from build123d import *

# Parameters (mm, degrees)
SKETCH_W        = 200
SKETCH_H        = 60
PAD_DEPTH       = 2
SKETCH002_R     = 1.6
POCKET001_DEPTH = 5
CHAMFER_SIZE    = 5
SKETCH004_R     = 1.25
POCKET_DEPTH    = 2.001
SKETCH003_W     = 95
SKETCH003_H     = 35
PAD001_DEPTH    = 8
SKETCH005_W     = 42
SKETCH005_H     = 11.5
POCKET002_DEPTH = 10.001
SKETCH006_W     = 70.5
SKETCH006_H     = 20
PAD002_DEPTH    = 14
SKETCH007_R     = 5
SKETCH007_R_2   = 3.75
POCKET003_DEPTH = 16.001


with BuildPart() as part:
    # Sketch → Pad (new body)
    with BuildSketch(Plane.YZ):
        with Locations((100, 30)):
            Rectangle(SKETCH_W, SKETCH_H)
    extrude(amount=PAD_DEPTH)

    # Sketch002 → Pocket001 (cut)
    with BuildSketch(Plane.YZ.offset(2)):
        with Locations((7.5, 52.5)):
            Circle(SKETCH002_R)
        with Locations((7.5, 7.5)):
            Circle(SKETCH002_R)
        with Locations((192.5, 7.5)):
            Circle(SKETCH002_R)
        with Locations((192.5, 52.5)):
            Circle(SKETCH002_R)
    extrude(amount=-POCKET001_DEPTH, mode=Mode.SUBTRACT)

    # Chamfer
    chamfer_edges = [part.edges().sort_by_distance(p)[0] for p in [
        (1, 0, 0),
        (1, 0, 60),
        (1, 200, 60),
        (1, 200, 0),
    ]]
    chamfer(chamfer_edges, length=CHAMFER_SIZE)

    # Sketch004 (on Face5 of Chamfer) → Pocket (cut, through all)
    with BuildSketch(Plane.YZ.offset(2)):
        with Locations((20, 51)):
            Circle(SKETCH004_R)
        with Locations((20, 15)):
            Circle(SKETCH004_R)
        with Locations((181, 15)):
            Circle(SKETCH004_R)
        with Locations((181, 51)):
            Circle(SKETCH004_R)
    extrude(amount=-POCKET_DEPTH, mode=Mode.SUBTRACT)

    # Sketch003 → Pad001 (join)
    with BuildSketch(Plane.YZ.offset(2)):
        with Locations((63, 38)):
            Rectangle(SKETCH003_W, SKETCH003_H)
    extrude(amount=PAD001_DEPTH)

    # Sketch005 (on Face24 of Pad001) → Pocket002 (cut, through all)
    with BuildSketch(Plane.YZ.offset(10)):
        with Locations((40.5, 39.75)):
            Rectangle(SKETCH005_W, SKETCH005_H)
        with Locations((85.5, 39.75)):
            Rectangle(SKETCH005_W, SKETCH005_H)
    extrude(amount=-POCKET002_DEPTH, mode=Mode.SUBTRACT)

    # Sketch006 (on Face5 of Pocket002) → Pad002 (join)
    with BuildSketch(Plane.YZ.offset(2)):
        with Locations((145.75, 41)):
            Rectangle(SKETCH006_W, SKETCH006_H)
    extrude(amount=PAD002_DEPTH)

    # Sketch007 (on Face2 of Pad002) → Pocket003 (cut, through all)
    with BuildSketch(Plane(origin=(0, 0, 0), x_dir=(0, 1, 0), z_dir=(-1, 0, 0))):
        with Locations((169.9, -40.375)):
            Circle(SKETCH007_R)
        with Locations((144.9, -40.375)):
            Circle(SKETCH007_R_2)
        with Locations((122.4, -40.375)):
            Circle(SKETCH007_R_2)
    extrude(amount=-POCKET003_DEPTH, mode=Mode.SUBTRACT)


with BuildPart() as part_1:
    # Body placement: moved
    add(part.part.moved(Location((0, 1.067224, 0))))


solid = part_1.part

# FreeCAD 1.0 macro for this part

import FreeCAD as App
import Part
import Sketcher


def edges_at(feature, points):
    """Names of the edges that pass closest to the given points."""
    edges = feature.Shape.Edges
    near = lambda p: min(range(len(edges)), key=lambda i: edges[i].distToShape(Part.Vertex(*p))[0])
    return sorted({f"Edge{near(p) + 1}" for p in points})

doc = App.newDocument("Part")
body = doc.addObject("PartDesign::Body", "Body")

sketch1 = body.newObject("Sketcher::SketchObject", "Sketch")
sketch1.AttachmentSupport = (doc.getObject("YZ_Plane"), [""])
sketch1.MapMode = "FlatFace"
sketch1.addGeometry([
    Part.LineSegment(App.Vector(0, 60, 0), App.Vector(0, 0, 0)),
    Part.LineSegment(App.Vector(0, 0, 0), App.Vector(200, 0, 0)),
    Part.LineSegment(App.Vector(200, 0, 0), App.Vector(200, 60, 0)),
    Part.LineSegment(App.Vector(200, 60, 0), App.Vector(0, 60, 0)),
], False)
sketch1.addConstraint([
    Sketcher.Constraint("Coincident", 0, 2, 1, 1),
    Sketcher.Constraint("Coincident", 1, 2, 2, 1),
    Sketcher.Constraint("Coincident", 2, 2, 3, 1),
    Sketcher.Constraint("Coincident", 3, 2, 0, 1),
    Sketcher.Constraint("Vertical", 0),
    Sketcher.Constraint("Horizontal", 1),
    Sketcher.Constraint("Vertical", 2),
    Sketcher.Constraint("Horizontal", 3),
    Sketcher.Constraint("Coincident", 0, 2, -1, 1),
    Sketcher.Constraint("DistanceX", 1, 1, 1, 2, 200.0),
    Sketcher.Constraint("DistanceY", 0, 2, 0, 1, 60.0),
])
pad1 = body.newObject("PartDesign::Pad", "Pad")
pad1.Profile = sketch1
pad1.Length = 2

sketch2 = body.newObject("Sketcher::SketchObject", "Sketch001")
sketch2.AttachmentSupport = (doc.getObject("YZ_Plane"), [""])
sketch2.MapMode = "FlatFace"
sketch2.AttachmentOffset = App.Placement(App.Vector(0, 0, 2), App.Rotation())
sketch2.addGeometry([
    Part.Circle(App.Vector(7.5, 52.5, 0), App.Vector(0, 0, 1), 1.6),
    Part.Circle(App.Vector(7.5, 7.5, 0), App.Vector(0, 0, 1), 1.6),
    Part.Circle(App.Vector(192.5, 7.5, 0), App.Vector(0, 0, 1), 1.6),
    Part.Circle(App.Vector(192.5, 52.5, 0), App.Vector(0, 0, 1), 1.6),
], False)
sketch2.addConstraint([
    Sketcher.Constraint("Equal", 0, 1),
    Sketcher.Constraint("Equal", 1, 2),
    Sketcher.Constraint("Equal", 2, 3),
    Sketcher.Constraint("Horizontal", 1, 3, 2, 3),
    Sketcher.Constraint("Horizontal", 0, 3, 3, 3),
    Sketcher.Constraint("Vertical", 0, 3, 1, 3),
    Sketcher.Constraint("Vertical", 2, 3, 3, 3),
    Sketcher.Constraint("Diameter", 0, 3.2),
    Sketcher.Constraint("DistanceY", 1, 3, 0, 3, 45.0),
    Sketcher.Constraint("DistanceX", 1, 3, 2, 3, 185.0),
    Sketcher.Constraint("DistanceX", -1, 1, 0, 3, 7.5),
    Sketcher.Constraint("DistanceY", -1, 1, 0, 3, 52.5),
])
pocket1 = body.newObject("PartDesign::Pocket", "Pocket")
pocket1.Profile = sketch2
pocket1.Length = 5
doc.recompute()

chamfer = body.newObject("PartDesign::Chamfer", "Chamfer")
chamfer.Base = (pocket1, edges_at(pocket1, [
    (1, 0, 0),
    (1, 0, 60),
    (1, 200, 60),
    (1, 200, 0),
]))
chamfer.Size = 5

sketch3 = body.newObject("Sketcher::SketchObject", "Sketch002")
sketch3.AttachmentSupport = (doc.getObject("YZ_Plane"), [""])
sketch3.MapMode = "FlatFace"
sketch3.AttachmentOffset = App.Placement(App.Vector(0, 0, 2), App.Rotation())
sketch3.addGeometry([
    Part.Circle(App.Vector(20, 51, 0), App.Vector(0, 0, 1), 1.25),
    Part.Circle(App.Vector(20, 15, 0), App.Vector(0, 0, 1), 1.25),
    Part.Circle(App.Vector(181, 15, 0), App.Vector(0, 0, 1), 1.25),
    Part.Circle(App.Vector(181, 51, 0), App.Vector(0, 0, 1), 1.25),
], False)
sketch3.addConstraint([
    Sketcher.Constraint("Equal", 0, 1),
    Sketcher.Constraint("Equal", 1, 2),
    Sketcher.Constraint("Equal", 2, 3),
    Sketcher.Constraint("Horizontal", 1, 3, 2, 3),
    Sketcher.Constraint("Horizontal", 0, 3, 3, 3),
    Sketcher.Constraint("Vertical", 0, 3, 1, 3),
    Sketcher.Constraint("Vertical", 2, 3, 3, 3),
    Sketcher.Constraint("Diameter", 0, 2.5),
    Sketcher.Constraint("DistanceX", -1, 1, 0, 3, 20.0),
    Sketcher.Constraint("DistanceY", -1, 1, 0, 3, 51.0),
    Sketcher.Constraint("DistanceY", -1, 1, 1, 3, 15.0),
    Sketcher.Constraint("DistanceX", -1, 1, 2, 3, 181.0),
])
pocket2 = body.newObject("PartDesign::Pocket", "Pocket001")
pocket2.Profile = sketch3
pocket2.Type = "ThroughAll"

sketch4 = body.newObject("Sketcher::SketchObject", "Sketch003")
sketch4.AttachmentSupport = (doc.getObject("YZ_Plane"), [""])
sketch4.MapMode = "FlatFace"
sketch4.AttachmentOffset = App.Placement(App.Vector(0, 0, 2), App.Rotation())
sketch4.addGeometry([
    Part.LineSegment(App.Vector(15.5, 55.5, 0), App.Vector(15.5, 20.5, 0)),
    Part.LineSegment(App.Vector(15.5, 20.5, 0), App.Vector(110.5, 20.5, 0)),
    Part.LineSegment(App.Vector(110.5, 20.5, 0), App.Vector(110.5, 55.5, 0)),
    Part.LineSegment(App.Vector(110.5, 55.5, 0), App.Vector(15.5, 55.5, 0)),
], False)
sketch4.addConstraint([
    Sketcher.Constraint("Coincident", 0, 2, 1, 1),
    Sketcher.Constraint("Coincident", 1, 2, 2, 1),
    Sketcher.Constraint("Coincident", 2, 2, 3, 1),
    Sketcher.Constraint("Coincident", 3, 2, 0, 1),
    Sketcher.Constraint("Vertical", 0),
    Sketcher.Constraint("Horizontal", 1),
    Sketcher.Constraint("Vertical", 2),
    Sketcher.Constraint("Horizontal", 3),
    Sketcher.Constraint("DistanceX", 1, 1, 1, 2, 95.0),
    Sketcher.Constraint("DistanceY", 0, 2, 0, 1, 35.0),
    Sketcher.Constraint("DistanceX", -1, 1, 0, 2, 15.5),
    Sketcher.Constraint("DistanceY", -1, 1, 0, 2, 20.5),
])
pad2 = body.newObject("PartDesign::Pad", "Pad001")
pad2.Profile = sketch4
pad2.Length = 8

sketch5 = body.newObject("Sketcher::SketchObject", "Sketch004")
sketch5.AttachmentSupport = (doc.getObject("YZ_Plane"), [""])
sketch5.MapMode = "FlatFace"
sketch5.AttachmentOffset = App.Placement(App.Vector(0, 0, 10), App.Rotation())
sketch5.addGeometry([
    Part.LineSegment(App.Vector(19.5, 45.5, 0), App.Vector(19.5, 34, 0)),
    Part.LineSegment(App.Vector(19.5, 34, 0), App.Vector(61.5, 34, 0)),
    Part.LineSegment(App.Vector(61.5, 34, 0), App.Vector(61.5, 45.5, 0)),
    Part.LineSegment(App.Vector(61.5, 45.5, 0), App.Vector(19.5, 45.5, 0)),
    Part.LineSegment(App.Vector(64.5, 45.5, 0), App.Vector(64.5, 34, 0)),
    Part.LineSegment(App.Vector(64.5, 34, 0), App.Vector(106.5, 34, 0)),
    Part.LineSegment(App.Vector(106.5, 34, 0), App.Vector(106.5, 45.5, 0)),
    Part.LineSegment(App.Vector(106.5, 45.5, 0), App.Vector(64.5, 45.5, 0)),
], False)
sketch5.addConstraint([
    Sketcher.Constraint("Coincident", 0, 2, 1, 1),
    Sketcher.Constraint("Coincident", 1, 2, 2, 1),
    Sketcher.Constraint("Coincident", 2, 2, 3, 1),
    Sketcher.Constraint("Coincident", 3, 2, 0, 1),
    Sketcher.Constraint("Coincident", 4, 2, 5, 1),
    Sketcher.Constraint("Coincident", 5, 2, 6, 1),
    Sketcher.Constraint("Coincident", 6, 2, 7, 1),
    Sketcher.Constraint("Coincident", 7, 2, 4, 1),
    Sketcher.Constraint("Vertical", 0),
    Sketcher.Constraint("Horizontal", 1),
    Sketcher.Constraint("Vertical", 2),
    Sketcher.Constraint("Horizontal", 3),
    Sketcher.Constraint("Vertical", 4),
    Sketcher.Constraint("Horizontal", 5),
    Sketcher.Constraint("Vertical", 6),
    Sketcher.Constraint("Horizontal", 7),
    Sketcher.Constraint("Horizontal", 1, 2, 4, 2),
    Sketcher.Constraint("Horizontal", 3, 2, 6, 2),
    Sketcher.Constraint("Equal", 3, 5),
    Sketcher.Constraint("DistanceX", 1, 1, 1, 2, 42.0),
    Sketcher.Constraint("DistanceY", 0, 2, 0, 1, 11.5),
    Sketcher.Constraint("DistanceY", -1, 1, 0, 2, 34.0),
    Sketcher.Constraint("DistanceX", 1, 2, 4, 2, 3.0),
    Sketcher.Constraint("DistanceX", -1, 1, 0, 2, 19.5),
])
pocket3 = body.newObject("PartDesign::Pocket", "Pocket002")
pocket3.Profile = sketch5
pocket3.Type = "ThroughAll"

sketch6 = body.newObject("Sketcher::SketchObject", "Sketch005")
sketch6.AttachmentSupport = (doc.getObject("YZ_Plane"), [""])
sketch6.MapMode = "FlatFace"
sketch6.AttachmentOffset = App.Placement(App.Vector(0, 0, 2), App.Rotation())
sketch6.addGeometry([
    Part.LineSegment(App.Vector(110.5, 51, 0), App.Vector(110.5, 31, 0)),
    Part.LineSegment(App.Vector(110.5, 31, 0), App.Vector(181, 31, 0)),
    Part.LineSegment(App.Vector(181, 31, 0), App.Vector(181, 51, 0)),
    Part.LineSegment(App.Vector(181, 51, 0), App.Vector(110.5, 51, 0)),
], False)
sketch6.addConstraint([
    Sketcher.Constraint("Coincident", 0, 2, 1, 1),
    Sketcher.Constraint("Coincident", 1, 2, 2, 1),
    Sketcher.Constraint("Coincident", 2, 2, 3, 1),
    Sketcher.Constraint("Coincident", 3, 2, 0, 1),
    Sketcher.Constraint("Vertical", 0),
    Sketcher.Constraint("Horizontal", 1),
    Sketcher.Constraint("Vertical", 2),
    Sketcher.Constraint("Horizontal", 3),
    Sketcher.Constraint("DistanceY", 0, 2, 0, 1, 20.0),
    Sketcher.Constraint("DistanceX", 1, 1, 1, 2, 70.5),
    Sketcher.Constraint("DistanceY", -1, 1, 0, 2, 31.0),
    Sketcher.Constraint("DistanceX", -1, 1, 1, 2, 181.0),
])
pad3 = body.newObject("PartDesign::Pad", "Pad002")
pad3.Profile = sketch6
pad3.Length = 14

sketch7 = body.newObject("Sketcher::SketchObject", "Sketch006")
sketch7.AttachmentSupport = (doc.getObject("YZ_Plane"), [""])
sketch7.MapMode = "FlatFace"
sketch7.addGeometry([
    Part.Circle(App.Vector(169.9, 40.375, 0), App.Vector(0, 0, 1), 5),
    Part.Circle(App.Vector(144.9, 40.375, 0), App.Vector(0, 0, 1), 3.75),
    Part.Circle(App.Vector(122.4, 40.375, 0), App.Vector(0, 0, 1), 3.75),
], False)
sketch7.addConstraint([
    Sketcher.Constraint("Equal", 1, 2),
    Sketcher.Constraint("Horizontal", 0, 3, 1, 3),
    Sketcher.Constraint("Horizontal", 1, 3, 2, 3),
    Sketcher.Constraint("Diameter", 0, 10.0),
    Sketcher.Constraint("Diameter", 1, 7.5),
    Sketcher.Constraint("DistanceX", 1, 3, 0, 3, 25.0),
    Sketcher.Constraint("DistanceX", -1, 1, 0, 3, 169.9),
    Sketcher.Constraint("DistanceX", -1, 1, 2, 3, 122.4),
    Sketcher.Constraint("DistanceY", -1, 1, 0, 3, 40.375),
])
pocket4 = body.newObject("PartDesign::Pocket", "Pocket003")
pocket4.Profile = sketch7
pocket4.Type = "ThroughAll"
pocket4.Reversed = True
body2 = doc.addObject("PartDesign::Body", "Body001")
doc.recompute()

body.Placement = App.Placement(App.Vector(0, 1.067224, 0), App.Rotation(App.Vector(0, 0, 1), 0))
boolean = body2.newObject("PartDesign::Boolean", "Boolean")
boolean.Type = "Fuse"
boolean.addObjects([body])

doc.recompute()
